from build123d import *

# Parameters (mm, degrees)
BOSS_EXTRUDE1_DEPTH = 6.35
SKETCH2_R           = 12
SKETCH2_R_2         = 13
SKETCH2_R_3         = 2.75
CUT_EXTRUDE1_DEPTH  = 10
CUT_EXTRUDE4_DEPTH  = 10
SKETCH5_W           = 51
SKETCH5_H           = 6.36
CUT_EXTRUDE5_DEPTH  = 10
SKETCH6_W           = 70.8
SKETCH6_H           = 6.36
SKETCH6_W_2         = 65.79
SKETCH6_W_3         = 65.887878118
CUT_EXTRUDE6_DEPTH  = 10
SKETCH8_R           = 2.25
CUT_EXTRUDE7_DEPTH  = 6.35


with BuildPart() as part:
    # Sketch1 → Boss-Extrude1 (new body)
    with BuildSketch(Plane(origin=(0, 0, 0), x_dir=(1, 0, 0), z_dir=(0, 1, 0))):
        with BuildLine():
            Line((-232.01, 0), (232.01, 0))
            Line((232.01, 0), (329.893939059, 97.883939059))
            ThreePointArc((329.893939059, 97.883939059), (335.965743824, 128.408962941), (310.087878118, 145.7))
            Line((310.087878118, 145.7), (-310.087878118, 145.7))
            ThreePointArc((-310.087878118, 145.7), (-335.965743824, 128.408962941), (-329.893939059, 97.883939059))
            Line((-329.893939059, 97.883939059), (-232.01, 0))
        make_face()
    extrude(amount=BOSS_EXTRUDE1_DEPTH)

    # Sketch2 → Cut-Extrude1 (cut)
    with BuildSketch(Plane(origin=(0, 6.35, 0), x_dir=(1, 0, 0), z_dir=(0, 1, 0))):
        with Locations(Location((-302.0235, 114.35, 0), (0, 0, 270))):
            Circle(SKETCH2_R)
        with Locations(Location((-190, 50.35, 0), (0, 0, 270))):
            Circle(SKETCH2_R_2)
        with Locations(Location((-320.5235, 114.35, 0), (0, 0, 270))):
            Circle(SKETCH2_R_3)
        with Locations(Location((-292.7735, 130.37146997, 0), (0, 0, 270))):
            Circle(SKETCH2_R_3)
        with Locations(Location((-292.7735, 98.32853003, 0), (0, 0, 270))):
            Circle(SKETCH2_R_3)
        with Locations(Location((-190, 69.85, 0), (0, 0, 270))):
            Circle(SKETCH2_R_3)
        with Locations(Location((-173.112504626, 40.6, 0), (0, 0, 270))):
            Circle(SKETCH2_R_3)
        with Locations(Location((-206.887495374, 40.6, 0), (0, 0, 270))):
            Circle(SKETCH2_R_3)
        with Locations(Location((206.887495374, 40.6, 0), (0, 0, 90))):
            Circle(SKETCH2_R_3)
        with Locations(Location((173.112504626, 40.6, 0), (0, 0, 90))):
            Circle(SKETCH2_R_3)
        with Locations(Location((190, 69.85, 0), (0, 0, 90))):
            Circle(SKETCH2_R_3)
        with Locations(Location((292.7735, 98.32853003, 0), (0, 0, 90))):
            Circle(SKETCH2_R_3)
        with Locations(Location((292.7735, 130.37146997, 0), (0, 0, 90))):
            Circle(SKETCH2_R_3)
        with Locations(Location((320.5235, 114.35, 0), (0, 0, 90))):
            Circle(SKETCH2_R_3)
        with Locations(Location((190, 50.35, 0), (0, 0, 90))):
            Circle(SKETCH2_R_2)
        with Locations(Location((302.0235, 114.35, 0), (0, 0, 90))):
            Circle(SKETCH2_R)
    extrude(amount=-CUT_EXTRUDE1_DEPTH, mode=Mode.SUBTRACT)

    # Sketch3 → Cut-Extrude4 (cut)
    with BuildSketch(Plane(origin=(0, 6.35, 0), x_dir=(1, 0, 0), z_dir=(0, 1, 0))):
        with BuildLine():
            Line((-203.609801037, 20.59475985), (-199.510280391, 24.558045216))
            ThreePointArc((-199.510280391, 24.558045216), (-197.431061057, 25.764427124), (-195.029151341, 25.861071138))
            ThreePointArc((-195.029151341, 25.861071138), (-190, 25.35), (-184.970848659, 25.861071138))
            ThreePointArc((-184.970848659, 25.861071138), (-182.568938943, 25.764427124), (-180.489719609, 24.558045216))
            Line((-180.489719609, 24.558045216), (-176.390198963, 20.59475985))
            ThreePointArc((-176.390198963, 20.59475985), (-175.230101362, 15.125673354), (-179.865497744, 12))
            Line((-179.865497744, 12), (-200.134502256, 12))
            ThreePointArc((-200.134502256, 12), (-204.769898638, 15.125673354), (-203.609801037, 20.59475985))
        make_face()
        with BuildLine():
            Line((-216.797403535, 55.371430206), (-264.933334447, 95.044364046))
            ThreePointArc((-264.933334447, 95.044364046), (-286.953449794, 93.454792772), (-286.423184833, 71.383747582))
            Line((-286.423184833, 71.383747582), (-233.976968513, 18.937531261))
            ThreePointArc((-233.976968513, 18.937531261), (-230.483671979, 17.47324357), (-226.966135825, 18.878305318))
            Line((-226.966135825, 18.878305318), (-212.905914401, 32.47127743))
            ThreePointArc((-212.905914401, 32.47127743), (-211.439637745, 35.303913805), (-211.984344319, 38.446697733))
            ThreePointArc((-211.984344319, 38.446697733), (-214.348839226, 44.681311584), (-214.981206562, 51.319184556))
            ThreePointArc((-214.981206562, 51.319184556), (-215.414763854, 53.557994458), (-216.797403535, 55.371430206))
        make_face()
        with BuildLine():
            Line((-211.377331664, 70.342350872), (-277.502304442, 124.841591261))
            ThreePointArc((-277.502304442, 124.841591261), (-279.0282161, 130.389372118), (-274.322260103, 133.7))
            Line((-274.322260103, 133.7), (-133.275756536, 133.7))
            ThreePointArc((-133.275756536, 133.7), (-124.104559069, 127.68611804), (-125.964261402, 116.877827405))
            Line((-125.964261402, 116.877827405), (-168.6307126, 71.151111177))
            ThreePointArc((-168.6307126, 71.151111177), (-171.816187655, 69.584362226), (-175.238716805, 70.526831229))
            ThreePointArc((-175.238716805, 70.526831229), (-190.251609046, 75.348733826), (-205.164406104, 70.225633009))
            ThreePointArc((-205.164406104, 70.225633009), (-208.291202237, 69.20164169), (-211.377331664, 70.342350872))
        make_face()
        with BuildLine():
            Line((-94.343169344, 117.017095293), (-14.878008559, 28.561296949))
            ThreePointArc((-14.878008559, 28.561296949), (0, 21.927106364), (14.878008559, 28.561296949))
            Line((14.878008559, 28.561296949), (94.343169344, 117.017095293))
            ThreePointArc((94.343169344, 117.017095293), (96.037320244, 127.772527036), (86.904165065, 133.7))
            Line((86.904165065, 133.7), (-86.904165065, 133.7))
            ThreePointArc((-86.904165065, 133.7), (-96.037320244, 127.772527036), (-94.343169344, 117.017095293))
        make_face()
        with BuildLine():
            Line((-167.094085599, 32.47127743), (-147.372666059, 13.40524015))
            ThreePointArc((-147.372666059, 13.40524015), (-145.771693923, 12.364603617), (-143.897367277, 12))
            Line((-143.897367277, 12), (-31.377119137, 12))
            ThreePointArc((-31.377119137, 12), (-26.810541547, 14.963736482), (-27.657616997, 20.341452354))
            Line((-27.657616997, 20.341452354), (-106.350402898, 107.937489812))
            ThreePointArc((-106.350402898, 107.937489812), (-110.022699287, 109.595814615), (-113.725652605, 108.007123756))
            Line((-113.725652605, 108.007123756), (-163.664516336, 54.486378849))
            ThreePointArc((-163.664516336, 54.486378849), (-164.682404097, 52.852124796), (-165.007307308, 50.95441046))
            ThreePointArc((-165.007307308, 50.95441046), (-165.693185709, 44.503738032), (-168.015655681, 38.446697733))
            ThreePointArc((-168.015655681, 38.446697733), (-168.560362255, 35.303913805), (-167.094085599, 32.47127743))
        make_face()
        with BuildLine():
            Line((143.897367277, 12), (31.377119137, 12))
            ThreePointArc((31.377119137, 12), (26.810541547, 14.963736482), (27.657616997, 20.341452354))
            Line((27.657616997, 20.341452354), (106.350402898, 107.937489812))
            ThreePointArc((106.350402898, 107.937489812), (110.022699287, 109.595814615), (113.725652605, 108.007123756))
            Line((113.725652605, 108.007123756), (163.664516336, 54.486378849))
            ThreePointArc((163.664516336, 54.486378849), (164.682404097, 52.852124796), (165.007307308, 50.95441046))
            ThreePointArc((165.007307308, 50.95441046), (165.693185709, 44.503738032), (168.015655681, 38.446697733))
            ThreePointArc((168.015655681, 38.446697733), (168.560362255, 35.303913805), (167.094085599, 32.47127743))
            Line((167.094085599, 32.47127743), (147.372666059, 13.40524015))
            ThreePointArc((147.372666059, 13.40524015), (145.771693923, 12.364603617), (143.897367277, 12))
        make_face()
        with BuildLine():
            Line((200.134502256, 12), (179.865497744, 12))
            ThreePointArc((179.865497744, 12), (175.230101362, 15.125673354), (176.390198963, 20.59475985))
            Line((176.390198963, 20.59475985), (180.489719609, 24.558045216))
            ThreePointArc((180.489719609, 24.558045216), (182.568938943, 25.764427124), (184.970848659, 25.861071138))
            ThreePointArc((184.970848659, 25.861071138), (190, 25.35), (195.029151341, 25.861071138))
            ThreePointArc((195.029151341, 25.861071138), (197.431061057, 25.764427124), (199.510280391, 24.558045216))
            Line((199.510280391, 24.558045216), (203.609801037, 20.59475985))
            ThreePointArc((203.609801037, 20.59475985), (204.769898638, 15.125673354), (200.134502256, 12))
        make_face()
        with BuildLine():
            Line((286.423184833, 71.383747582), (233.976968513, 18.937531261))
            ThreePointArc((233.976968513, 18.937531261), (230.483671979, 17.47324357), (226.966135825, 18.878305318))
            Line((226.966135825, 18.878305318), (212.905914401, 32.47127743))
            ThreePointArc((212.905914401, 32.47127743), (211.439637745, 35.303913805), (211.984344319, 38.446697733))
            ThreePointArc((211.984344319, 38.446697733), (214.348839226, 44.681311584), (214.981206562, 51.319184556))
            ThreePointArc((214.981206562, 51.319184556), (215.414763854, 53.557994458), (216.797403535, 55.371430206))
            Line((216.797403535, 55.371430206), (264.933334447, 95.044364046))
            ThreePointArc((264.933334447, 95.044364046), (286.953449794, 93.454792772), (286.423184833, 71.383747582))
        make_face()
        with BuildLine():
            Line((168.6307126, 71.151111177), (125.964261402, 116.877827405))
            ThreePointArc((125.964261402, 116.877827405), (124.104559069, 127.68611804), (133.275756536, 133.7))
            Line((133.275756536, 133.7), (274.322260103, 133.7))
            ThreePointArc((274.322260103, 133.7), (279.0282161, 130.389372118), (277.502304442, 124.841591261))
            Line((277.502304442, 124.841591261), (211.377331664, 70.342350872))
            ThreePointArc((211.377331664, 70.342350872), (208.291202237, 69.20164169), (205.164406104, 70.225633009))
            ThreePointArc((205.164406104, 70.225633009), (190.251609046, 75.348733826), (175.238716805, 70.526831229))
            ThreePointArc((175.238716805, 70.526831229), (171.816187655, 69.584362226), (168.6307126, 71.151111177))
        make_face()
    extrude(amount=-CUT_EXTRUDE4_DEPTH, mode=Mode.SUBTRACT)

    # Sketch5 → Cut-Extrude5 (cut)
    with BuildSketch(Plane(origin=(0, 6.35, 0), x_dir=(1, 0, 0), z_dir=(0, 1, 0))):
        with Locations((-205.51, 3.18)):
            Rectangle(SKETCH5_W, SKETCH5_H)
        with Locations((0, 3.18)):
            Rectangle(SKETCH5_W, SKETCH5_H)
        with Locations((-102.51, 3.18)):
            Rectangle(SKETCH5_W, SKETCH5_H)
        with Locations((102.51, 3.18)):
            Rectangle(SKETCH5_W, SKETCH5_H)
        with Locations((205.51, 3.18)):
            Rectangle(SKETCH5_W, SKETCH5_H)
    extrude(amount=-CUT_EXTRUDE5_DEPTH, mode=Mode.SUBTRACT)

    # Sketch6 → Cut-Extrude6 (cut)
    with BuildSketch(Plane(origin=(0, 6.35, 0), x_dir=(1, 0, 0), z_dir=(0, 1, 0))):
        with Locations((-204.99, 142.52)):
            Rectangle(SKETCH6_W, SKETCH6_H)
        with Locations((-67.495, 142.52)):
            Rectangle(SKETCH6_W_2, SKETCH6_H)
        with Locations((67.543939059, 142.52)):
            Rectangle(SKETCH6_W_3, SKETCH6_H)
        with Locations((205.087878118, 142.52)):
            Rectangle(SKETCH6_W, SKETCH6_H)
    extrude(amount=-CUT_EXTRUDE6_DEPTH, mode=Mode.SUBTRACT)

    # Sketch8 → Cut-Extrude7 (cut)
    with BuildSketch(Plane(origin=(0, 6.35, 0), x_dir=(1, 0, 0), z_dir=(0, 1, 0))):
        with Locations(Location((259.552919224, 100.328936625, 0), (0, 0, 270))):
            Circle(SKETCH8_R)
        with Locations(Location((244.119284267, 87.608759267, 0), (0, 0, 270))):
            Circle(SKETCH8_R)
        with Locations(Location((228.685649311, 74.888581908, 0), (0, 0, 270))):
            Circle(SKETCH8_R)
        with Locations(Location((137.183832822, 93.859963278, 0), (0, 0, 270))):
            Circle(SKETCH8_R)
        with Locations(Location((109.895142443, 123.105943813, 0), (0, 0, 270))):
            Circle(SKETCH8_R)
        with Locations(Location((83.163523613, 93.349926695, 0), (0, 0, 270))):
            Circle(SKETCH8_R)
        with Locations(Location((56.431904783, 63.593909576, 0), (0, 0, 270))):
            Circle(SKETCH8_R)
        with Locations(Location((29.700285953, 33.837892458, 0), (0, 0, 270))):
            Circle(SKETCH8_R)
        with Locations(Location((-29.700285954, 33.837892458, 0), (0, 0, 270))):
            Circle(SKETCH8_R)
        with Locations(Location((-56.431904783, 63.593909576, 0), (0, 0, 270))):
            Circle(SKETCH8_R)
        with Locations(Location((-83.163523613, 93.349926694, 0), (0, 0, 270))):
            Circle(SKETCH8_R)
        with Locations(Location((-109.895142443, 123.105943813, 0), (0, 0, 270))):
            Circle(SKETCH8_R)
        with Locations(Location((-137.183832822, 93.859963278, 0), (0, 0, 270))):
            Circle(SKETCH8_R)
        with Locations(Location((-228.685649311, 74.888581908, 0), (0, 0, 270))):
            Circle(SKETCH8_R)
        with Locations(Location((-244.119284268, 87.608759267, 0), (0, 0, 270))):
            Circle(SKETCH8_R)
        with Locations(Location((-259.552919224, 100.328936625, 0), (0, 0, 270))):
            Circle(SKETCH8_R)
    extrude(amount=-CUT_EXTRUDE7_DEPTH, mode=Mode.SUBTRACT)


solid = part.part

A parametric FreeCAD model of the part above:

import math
import FreeCAD as App
import Part
import Sketcher
Q = App.Units.Quantity

doc = App.newDocument("Part")
body = doc.addObject("PartDesign::Body", "Body")

sketch1 = body.newObject("Sketcher::SketchObject", "Sketch")
sketch1.AttachmentSupport = (doc.getObject("XZ_Plane"), [""])
sketch1.MapMode = "FlatFace"
sketch1.addGeometry([
    Part.LineSegment(App.Vector(-232, 0, 0), App.Vector(232, 0, 0)),
    Part.LineSegment(App.Vector(232, 0, 0), App.Vector(330, -98, 0)),
    Part.ArcOfCircle(Part.Circle(App.Vector(310, -118, 0), App.Vector(0, 0, 1), 28), math.radians(-90), math.radians(45)),
    Part.LineSegment(App.Vector(310, -146, 0), App.Vector(-310, -146, 0)),
    Part.ArcOfCircle(Part.Circle(App.Vector(-310, -118, 0), App.Vector(0, 0, 1), 28), math.radians(135), math.radians(270)),
    Part.LineSegment(App.Vector(-330, -98, 0), App.Vector(-232, 0, 0)),
], False)
sketch1.addConstraint([
    Sketcher.Constraint("Coincident", 0, 2, 1, 1),
    Sketcher.Constraint("Tangent", 1, 2, 2, 2),
    Sketcher.Constraint("Tangent", 2, 1, 3, 1),
    Sketcher.Constraint("Tangent", 3, 2, 4, 2),
    Sketcher.Constraint("Tangent", 4, 1, 5, 1),
    Sketcher.Constraint("Coincident", 5, 2, 0, 1),
    Sketcher.Constraint("Horizontal", 0),
    Sketcher.Constraint("Horizontal", 3),
    Sketcher.Constraint("Equal", 2, 4),
    Sketcher.Constraint("Symmetric", 0, 2, 5, 2, -1, 1),
    Sketcher.Constraint("Perpendicular", 1, 5),
    Sketcher.Constraint("Horizontal", 1, 2, 4, 1),
    Sketcher.Constraint("Radius", 2, Q("28.01 mm")),
    Sketcher.Constraint("DistanceX", 0, 1, 0, 2, Q("464.02 mm")),
    Sketcher.Constraint("DistanceY", 2, 1, -1, 1, Q("145.7 mm")),
])
pad1 = body.newObject("PartDesign::Pad", "Pad")
pad1.Profile = sketch1
pad1.Length = 6.35
pad1.Reversed = True

sketch2 = body.newObject("Sketcher::SketchObject", "Sketch001")
sketch2.AttachmentSupport = (doc.getObject("XZ_Plane"), [""])
sketch2.MapMode = "FlatFace"
sketch2.AttachmentOffset = App.Placement(App.Vector(0, 0, -6.35), App.Rotation())
sketch2.addGeometry([
    Part.Circle(App.Vector(-302, -114.3, 0), App.Vector(0, 0, 1), 12),
    Part.Circle(App.Vector(-190, -50.4, 0), App.Vector(0, 0, 1), 13),
    Part.Circle(App.Vector(-320.5, -114.3, 0), App.Vector(0, 0, 1), 2.8),
    Part.Circle(App.Vector(-292.8, -130.4, 0), App.Vector(0, 0, 1), 2.8),
    Part.Circle(App.Vector(-292.8, -98.3, 0), App.Vector(0, 0, 1), 2.8),
    Part.Circle(App.Vector(-190, -69.8, 0), App.Vector(0, 0, 1), 2.8),
    Part.Circle(App.Vector(-173.1, -40.6, 0), App.Vector(0, 0, 1), 2.8),
    Part.Circle(App.Vector(-206.9, -40.6, 0), App.Vector(0, 0, 1), 2.8),
    Part.Circle(App.Vector(206.9, -40.6, 0), App.Vector(0, 0, 1), 2.8),
    Part.Circle(App.Vector(173.1, -40.6, 0), App.Vector(0, 0, 1), 2.8),
    Part.Circle(App.Vector(190, -69.8, 0), App.Vector(0, 0, 1), 2.8),
    Part.Circle(App.Vector(292.8, -98.3, 0), App.Vector(0, 0, 1), 2.8),
    Part.Circle(App.Vector(292.8, -130.4, 0), App.Vector(0, 0, 1), 2.8),
    Part.Circle(App.Vector(320.5, -114.3, 0), App.Vector(0, 0, 1), 2.8),
    Part.Circle(App.Vector(190, -50.4, 0), App.Vector(0, 0, 1), 13),
    Part.Circle(App.Vector(302, -114.3, 0), App.Vector(0, 0, 1), 12),
], False)
sketch2.addConstraint([
    Sketcher.Constraint("Equal", 2, 3),
    Sketcher.Constraint("Equal", 3, 4),
    Sketcher.Constraint("Equal", 4, 5),
    Sketcher.Constraint("Equal", 5, 6),
    Sketcher.Constraint("Equal", 6, 7),
    Sketcher.Constraint("Equal", 7, 8),
    Sketcher.Constraint("Equal", 8, 9),
    Sketcher.Constraint("Equal", 9, 10),
    Sketcher.Constraint("Equal", 10, 11),
    Sketcher.Constraint("Equal", 11, 12),
    Sketcher.Constraint("Equal", 12, 13),
    Sketcher.Constraint("Equal", 1, 14),
    Sketcher.Constraint("Equal", 0, 15),
    Sketcher.Constraint("Symmetric", 7, 3, 8, 3, -2),
    Sketcher.Constraint("Symmetric", 6, 3, 9, 3, -2),
    Sketcher.Constraint("Symmetric", 5, 3, 10, 3, -2),
    Sketcher.Constraint("Symmetric", 4, 3, 11, 3, -2),
    Sketcher.Constraint("Symmetric", 3, 3, 12, 3, -2),
    Sketcher.Constraint("Symmetric", 2, 3, 13, 3, -2),
    Sketcher.Constraint("Symmetric", 1, 3, 14, 3, -2),
    Sketcher.Constraint("Symmetric", 0, 3, 15, 3, -2),
    Sketcher.Constraint("Horizontal", 0, 3, 2, 3),
    Sketcher.Constraint("Horizontal", 6, 3, 7, 3),
    Sketcher.Constraint("Vertical", 3, 3, 4, 3),
    Sketcher.Constraint("Vertical", 1, 3, 5, 3),
    Sketcher.Constraint("Diameter", 0, Q("24 mm")),
    Sketcher.Constraint("Diameter", 1, Q("26 mm")),
    Sketcher.Constraint("Diameter", 2, Q("5.5 mm")),
    Sketcher.Constraint("DistanceX", 1, 3, -1, 1, Q("190 mm")),
    Sketcher.Constraint("DistanceY", 0, 3, 1, 3, Q("64 mm")),
    Sketcher.Constraint("DistanceX", 6, 3, 8, 3, Q("380 mm")),
    Sketcher.Constraint("DistanceY", 6, 3, -1, 1, Q("40.6 mm")),
    Sketcher.Constraint("DistanceX", 2, 3, 0, 3, Q("18.5 mm")),
    Sketcher.Constraint("DistanceY", 5, 3, 1, 3, Q("19.5 mm")),
    Sketcher.Constraint("DistanceY", 0, 3, -1, 1, Q("114.35 mm")),
    Sketcher.Constraint("DistanceX", 0, 3, 3, 3, Q("9.25 mm")),
    Sketcher.Constraint("DistanceX", 0, 3, -1, 1, Q("302.0235 mm")),
    Sketcher.Constraint("DistanceY", 3, 3, -1, 1, Q("130.37147 mm")),
    Sketcher.Constraint("DistanceY", 4, 3, -1, 1, Q("98.32853 mm")),
    Sketcher.Constraint("DistanceX", 7, 3, 6, 3, Q("33.774991 mm")),
])
pocket1 = body.newObject("PartDesign::Pocket", "Pocket")
pocket1.Profile = sketch2
pocket1.Length = 10
pocket1.Reversed = True

sketch3 = body.newObject("Sketcher::SketchObject", "Sketch002")
sketch3.AttachmentSupport = (doc.getObject("XZ_Plane"), [""])
sketch3.MapMode = "FlatFace"
sketch3.AttachmentOffset = App.Placement(App.Vector(0, 0, -6.35), App.Rotation())
sketch3.addGeometry([
    Part.LineSegment(App.Vector(-199.5, -24.6, 0), App.Vector(-203.6, -20.6, 0)),
    Part.ArcOfCircle(Part.Circle(App.Vector(-200.1, -17, 0), App.Vector(0, 0, 1), 5), math.radians(90), math.radians(226)),
    Part.LineSegment(App.Vector(-200.1, -12, 0), App.Vector(-179.9, -12, 0)),
    Part.ArcOfCircle(Part.Circle(App.Vector(-179.9, -17, 0), App.Vector(0, 0, 1), 5), math.radians(-46), math.radians(90)),
    Part.LineSegment(App.Vector(-176.4, -20.6, 0), App.Vector(-180.5, -24.6, 0)),
    Part.ArcOfCircle(Part.Circle(App.Vector(-184, -21, 0), App.Vector(0, 0, 1), 5), math.radians(-102), math.radians(-46)),
    Part.ArcOfCircle(Part.Circle(App.Vector(-190, -50.4, 0), App.Vector(0, 0, 1), 25), math.radians(78), math.radians(102)),
    Part.ArcOfCircle(Part.Circle(App.Vector(-196, -21, 0), App.Vector(0, 0, 1), 5), math.radians(-134), math.radians(-78)),
    Part.LineSegment(App.Vector(-216.8, -55.4, 0), App.Vector(-264.9, -95, 0)),
    Part.ArcOfCircle(Part.Circle(App.Vector(-275.1, -82.7, 0), App.Vector(0, 0, 1), 16), math.radians(135), math.radians(309)),
    Part.LineSegment(App.Vector(-286.4, -71.4, 0), App.Vector(-234, -18.9, 0)),
    Part.ArcOfCircle(Part.Circle(App.Vector(-230.4, -22.5, 0), App.Vector(0, 0, 1), 5), math.radians(46), math.radians(135)),
    Part.LineSegment(App.Vector(-227, -18.9, 0), App.Vector(-212.9, -32.5, 0)),
    Part.ArcOfCircle(Part.Circle(App.Vector(-216.4, -36.1, 0), App.Vector(0, 0, 1), 5), math.radians(-28), math.radians(46)),
    Part.ArcOfCircle(Part.Circle(App.Vector(-190, -50.3, 0), App.Vector(0, 0, 1), 25), math.radians(152), math.radians(182)),
    Part.ArcOfCircle(Part.Circle(App.Vector(-220, -51.5, 0), App.Vector(0, 0, 1), 5), math.radians(-51), math.radians(2)),
    Part.LineSegment(App.Vector(-277.5, -124.8, 0), App.Vector(-211.4, -70.3, 0)),
    Part.ArcOfCircle(Part.Circle(App.Vector(-208.2, -74.2, 0), App.Vector(0, 0, 1), 5), math.radians(53), math.radians(129)),
    Part.ArcOfCircle(Part.Circle(App.Vector(-190, -50.4, 0), App.Vector(0, 0, 1), 25), math.radians(-127), math.radians(-54)),
    Part.ArcOfCircle(Part.Circle(App.Vector(-172.3, -74.6, 0), App.Vector(0, 0, 1), 5), math.radians(43), math.radians(126)),
    Part.LineSegment(App.Vector(-168.6, -71.2, 0), App.Vector(-126, -116.9, 0)),
    Part.ArcOfCircle(Part.Circle(App.Vector(-133.3, -123.7, 0), App.Vector(0, 0, 1), 10), math.radians(-90), math.radians(43)),
    Part.LineSegment(App.Vector(-133.3, -133.7, 0), App.Vector(-274.3, -133.7, 0)),
    Part.ArcOfCircle(Part.Circle(App.Vector(-274.3, -128.7, 0), App.Vector(0, 0, 1), 5), math.radians(129), math.radians(270)),
    Part.LineSegment(App.Vector(-94.3, -117, 0), App.Vector(-14.9, -28.6, 0)),
    Part.ArcOfCircle(Part.Circle(App.Vector(0, -41.9, 0), App.Vector(0, 0, 1), 20), math.radians(42), math.radians(138)),
    Part.LineSegment(App.Vector(14.9, -28.6, 0), App.Vector(94.3, -117, 0)),
    Part.ArcOfCircle(Part.Circle(App.Vector(86.9, -123.7, 0), App.Vector(0, 0, 1), 10), math.radians(-90), math.radians(42)),
    Part.LineSegment(App.Vector(86.9, -133.7, 0), App.Vector(-86.9, -133.7, 0)),
    Part.ArcOfCircle(Part.Circle(App.Vector(-86.9, -123.7, 0), App.Vector(0, 0, 1), 10), math.radians(138), math.radians(270)),
    Part.LineSegment(App.Vector(-167.1, -32.5, 0), App.Vector(-147.4, -13.4, 0)),
    Part.ArcOfCircle(Part.Circle(App.Vector(-143.9, -17, 0), App.Vector(0, 0, 1), 5), math.radians(90), math.radians(134)),
    Part.LineSegment(App.Vector(-143.9, -12, 0), App.Vector(-31.4, -12, 0)),
    Part.ArcOfCircle(Part.Circle(App.Vector(-31.4, -17, 0), App.Vector(0, 0, 1), 5), math.radians(-42), math.radians(90)),
    Part.LineSegment(App.Vector(-27.7, -20.3, 0), App.Vector(-106.4, -107.9, 0)),
    Part.ArcOfCircle(Part.Circle(App.Vector(-110.1, -104.6, 0), App.Vector(0, 0, 1), 5), math.radians(-137), math.radians(-42)),
    Part.LineSegment(App.Vector(-113.7, -108, 0), App.Vector(-163.7, -54.5, 0)),
    Part.ArcOfCircle(Part.Circle(App.Vector(-160, -51.1, 0), App.Vector(0, 0, 1), 5), math.radians(179), math.radians(223)),
    Part.ArcOfCircle(Part.Circle(App.Vector(-190, -50.4, 0), App.Vector(0, 0, 1), 25), math.radians(-1), math.radians(28)),
    Part.ArcOfCircle(Part.Circle(App.Vector(-163.6, -36.1, 0), App.Vector(0, 0, 1), 5), math.radians(134), math.radians(208)),
    Part.LineSegment(App.Vector(31.4, -12, 0), App.Vector(143.9, -12, 0)),
    Part.ArcOfCircle(Part.Circle(App.Vector(143.9, -17, 0), App.Vector(0, 0, 1), 5), math.radians(46), math.radians(90)),
    Part.LineSegment(App.Vector(147.4, -13.4, 0), App.Vector(167.1, -32.5, 0)),
    Part.ArcOfCircle(Part.Circle(App.Vector(163.6, -36.1, 0), App.Vector(0, 0, 1), 5), math.radians(-28), math.radians(46)),
    Part.ArcOfCircle(Part.Circle(App.Vector(190, -50.4, 0), App.Vector(0, 0, 1), 25), math.radians(152), math.radians(181)),
    Part.ArcOfCircle(Part.Circle(App.Vector(160, -51.1, 0), App.Vector(0, 0, 1), 5), math.radians(-43), math.radians(1)),
    Part.LineSegment(App.Vector(163.7, -54.5, 0), App.Vector(113.7, -108, 0)),
    Part.ArcOfCircle(Part.Circle(App.Vector(110.1, -104.6, 0), App.Vector(0, 0, 1), 5), math.radians(-138), math.radians(-43)),
    Part.LineSegment(App.Vector(106.4, -107.9, 0), App.Vector(27.7, -20.3, 0)),
    Part.ArcOfCircle(Part.Circle(App.Vector(31.4, -17, 0), App.Vector(0, 0, 1), 5), math.radians(90), math.radians(222)),
    Part.LineSegment(App.Vector(179.9, -12, 0), App.Vector(200.1, -12, 0)),
    Part.ArcOfCircle(Part.Circle(App.Vector(200.1, -17, 0), App.Vector(0, 0, 1), 5), math.radians(-46), math.radians(90)),
    Part.LineSegment(App.Vector(203.6, -20.6, 0), App.Vector(199.5, -24.6, 0)),
    Part.ArcOfCircle(Part.Circle(App.Vector(196, -21, 0), App.Vector(0, 0, 1), 5), math.radians(-102), math.radians(-46)),
    Part.ArcOfCircle(Part.Circle(App.Vector(190, -50.4, 0), App.Vector(0, 0, 1), 25), math.radians(78), math.radians(102)),
    Part.ArcOfCircle(Part.Circle(App.Vector(184, -21, 0), App.Vector(0, 0, 1), 5), math.radians(-134), math.radians(-78)),
    Part.LineSegment(App.Vector(180.5, -24.6, 0), App.Vector(176.4, -20.6, 0)),
    Part.ArcOfCircle(Part.Circle(App.Vector(179.9, -17, 0), App.Vector(0, 0, 1), 5), math.radians(90), math.radians(226)),
    Part.LineSegment(App.Vector(234, -18.9, 0), App.Vector(286.4, -71.4, 0)),
    Part.ArcOfCircle(Part.Circle(App.Vector(275.1, -82.7, 0), App.Vector(0, 0, 1), 16), math.radians(-129), math.radians(45)),
    Part.LineSegment(App.Vector(264.9, -95, 0), App.Vector(216.8, -55.4, 0)),
    Part.ArcOfCircle(Part.Circle(App.Vector(220, -51.5, 0), App.Vector(0, 0, 1), 5), math.radians(178), math.radians(231)),
    Part.ArcOfCircle(Part.Circle(App.Vector(190, -50.3, 0), App.Vector(0, 0, 1), 25), math.radians(-2), math.radians(28)),
    Part.ArcOfCircle(Part.Circle(App.Vector(216.4, -36.1, 0), App.Vector(0, 0, 1), 5), math.radians(134), math.radians(208)),
    Part.LineSegment(App.Vector(212.9, -32.5, 0), App.Vector(227, -18.9, 0)),
    Part.ArcOfCircle(Part.Circle(App.Vector(230.4, -22.5, 0), App.Vector(0, 0, 1), 5), math.radians(45), math.radians(134)),
    Part.LineSegment(App.Vector(126, -116.9, 0), App.Vector(168.6, -71.2, 0)),
    Part.ArcOfCircle(Part.Circle(App.Vector(172.3, -74.6, 0), App.Vector(0, 0, 1), 5), math.radians(54), math.radians(137)),
    Part.ArcOfCircle(Part.Circle(App.Vector(190, -50.4, 0), App.Vector(0, 0, 1), 25), math.radians(-126), math.radians(-53)),
    Part.ArcOfCircle(Part.Circle(App.Vector(208.2, -74.2, 0), App.Vector(0, 0, 1), 5), math.radians(51), math.radians(127)),
    Part.LineSegment(App.Vector(211.4, -70.3, 0), App.Vector(277.5, -124.8, 0)),
    Part.ArcOfCircle(Part.Circle(App.Vector(274.3, -128.7, 0), App.Vector(0, 0, 1), 5), math.radians(-90), math.radians(51)),
    Part.LineSegment(App.Vector(274.3, -133.7, 0), App.Vector(133.3, -133.7, 0)),
    Part.ArcOfCircle(Part.Circle(App.Vector(133.3, -123.7, 0), App.Vector(0, 0, 1), 10), math.radians(137), math.radians(270)),
], False)
sketch3.addConstraint([
    Sketcher.Constraint("Tangent", 0, 2, 1, 2),
    Sketcher.Constraint("Tangent", 1, 1, 2, 1),
    Sketcher.Constraint("Tangent", 2, 2, 3, 2),
    Sketcher.Constraint("Tangent", 3, 1, 4, 1),
    Sketcher.Constraint("Tangent", 4, 2, 5, 2),
    Sketcher.Constraint("Tangent", 5, 1, 6, 1),
    Sketcher.Constraint("Tangent", 6, 2, 7, 2),
    Sketcher.Constraint("Tangent", 7, 1, 0, 1),
    Sketcher.Constraint("Tangent", 8, 2, 9, 2),
    Sketcher.Constraint("Tangent", 9, 1, 10, 1),
    Sketcher.Constraint("Tangent", 10, 2, 11, 2),
    Sketcher.Constraint("Tangent", 11, 1, 12, 1),
    Sketcher.Constraint("Tangent", 12, 2, 13, 2),
    Sketcher.Constraint("Tangent", 13, 1, 14, 1),
    Sketcher.Constraint("Tangent", 14, 2, 15, 2),
    Sketcher.Constraint("Tangent", 15, 1, 8, 1),
    Sketcher.Constraint("Tangent", 16, 2, 17, 2),
    Sketcher.Constraint("Tangent", 17, 1, 18, 1),
    Sketcher.Constraint("Tangent", 18, 2, 19, 2),
    Sketcher.Constraint("Tangent", 19, 1, 20, 1),
    Sketcher.Constraint("Tangent", 20, 2, 21, 2),
    Sketcher.Constraint("Tangent", 21, 1, 22, 1),
    Sketcher.Constraint("Tangent", 22, 2, 23, 2),
    Sketcher.Constraint("Tangent", 23, 1, 16, 1),
    Sketcher.Constraint("Tangent", 24, 2, 25, 2),
    Sketcher.Constraint("Tangent", 25, 1, 26, 1),
    Sketcher.Constraint("Tangent", 26, 2, 27, 2),
    Sketcher.Constraint("Tangent", 27, 1, 28, 1),
    Sketcher.Constraint("Tangent", 28, 2, 29, 2),
    Sketcher.Constraint("Tangent", 29, 1, 24, 1),
    Sketcher.Constraint("Tangent", 30, 2, 31, 2),
    Sketcher.Constraint("Tangent", 31, 1, 32, 1),
    Sketcher.Constraint("Tangent", 32, 2, 33, 2),
    Sketcher.Constraint("Tangent", 33, 1, 34, 1),
    Sketcher.Constraint("Tangent", 34, 2, 35, 2),
    Sketcher.Constraint("Tangent", 35, 1, 36, 1),
    Sketcher.Constraint("Tangent", 36, 2, 37, 2),
    Sketcher.Constraint("Tangent", 37, 1, 38, 1),
    Sketcher.Constraint("Tangent", 38, 2, 39, 2),
    Sketcher.Constraint("Tangent", 39, 1, 30, 1),
    Sketcher.Constraint("Tangent", 40, 2, 41, 2),
    Sketcher.Constraint("Tangent", 41, 1, 42, 1),
    Sketcher.Constraint("Tangent", 42, 2, 43, 2),
    Sketcher.Constraint("Tangent", 43, 1, 44, 1),
    Sketcher.Constraint("Tangent", 44, 2, 45, 2),
    Sketcher.Constraint("Tangent", 45, 1, 46, 1),
    Sketcher.Constraint("Tangent", 46, 2, 47, 2),
    Sketcher.Constraint("Tangent", 47, 1, 48, 1),
    Sketcher.Constraint("Tangent", 48, 2, 49, 2),
    Sketcher.Constraint("Tangent", 49, 1, 40, 1),
    Sketcher.Constraint("Tangent", 50, 2, 51, 2),
    Sketcher.Constraint("Tangent", 51, 1, 52, 1),
    Sketcher.Constraint("Tangent", 52, 2, 53, 2),
    Sketcher.Constraint("Tangent", 53, 1, 54, 1),
    Sketcher.Constraint("Tangent", 54, 2, 55, 2),
    Sketcher.Constraint("Tangent", 55, 1, 56, 1),
    Sketcher.Constraint("Tangent", 56, 2, 57, 2),
    Sketcher.Constraint("Tangent", 57, 1, 50, 1),
    Sketcher.Constraint("Tangent", 58, 2, 59, 2),
    Sketcher.Constraint("Tangent", 59, 1, 60, 1),
    Sketcher.Constraint("Tangent", 60, 2, 61, 2),
    Sketcher.Constraint("Tangent", 61, 1, 62, 1),
    Sketcher.Constraint("Tangent", 62, 2, 63, 2),
    Sketcher.Constraint("Tangent", 63, 1, 64, 1),
    Sketcher.Constraint("Tangent", 64, 2, 65, 2),
    Sketcher.Constraint("Tangent", 65, 1, 58, 1),
    Sketcher.Constraint("Tangent", 66, 2, 67, 2),
    Sketcher.Constraint("Tangent", 67, 1, 68, 1),
    Sketcher.Constraint("Tangent", 68, 2, 69, 2),
    Sketcher.Constraint("Tangent", 69, 1, 70, 1),
    Sketcher.Constraint("Tangent", 70, 2, 71, 2),
    Sketcher.Constraint("Tangent", 71, 1, 72, 1),
    Sketcher.Constraint("Tangent", 72, 2, 73, 2),
    Sketcher.Constraint("Tangent", 73, 1, 66, 1),
    Sketcher.Constraint("Horizontal", 2),
    Sketcher.Constraint("Horizontal", 22),
    Sketcher.Constraint("Horizontal", 28),
    Sketcher.Constraint("Horizontal", 32),
    Sketcher.Constraint("Horizontal", 40),
    Sketcher.Constraint("Horizontal", 50),
    Sketcher.Constraint("Horizontal", 72),
    Sketcher.Constraint("Coincident", 14, 3, 6, 3),
    Sketcher.Constraint("Coincident", 18, 3, 6, 3),
    Sketcher.Constraint("Coincident", 38, 3, 6, 3),
    Sketcher.Constraint("Coincident", 54, 3, 44, 3),
    Sketcher.Constraint("Coincident", 62, 3, 44, 3),
    Sketcher.Constraint("Coincident", 68, 3, 44, 3),
    Sketcher.Constraint("Equal", 1, 3),
    Sketcher.Constraint("Equal", 3, 5),
    Sketcher.Constraint("Equal", 5, 7),
    Sketcher.Constraint("Equal", 7, 11),
    Sketcher.Constraint("Equal", 11, 13),
    Sketcher.Constraint("Equal", 6, 14),
    Sketcher.Constraint("Equal", 13, 15),
    Sketcher.Constraint("Equal", 15, 17),
    Sketcher.Constraint("Equal", 14, 18),
    Sketcher.Constraint("Equal", 17, 19),
    Sketcher.Constraint("Equal", 19, 23),
    Sketcher.Constraint("Equal", 21, 27),
    Sketcher.Constraint("Equal", 27, 29),
    Sketcher.Constraint("Equal", 23, 31),
    Sketcher.Constraint("Equal", 31, 33),
    Sketcher.Constraint("Equal", 33, 35),
    Sketcher.Constraint("Equal", 35, 37),
    Sketcher.Constraint("Equal", 18, 38),
    Sketcher.Constraint("Equal", 37, 39),
    Sketcher.Constraint("Equal", 39, 41),
    Sketcher.Constraint("Equal", 41, 43),
    Sketcher.Constraint("Equal", 38, 44),
    Sketcher.Constraint("Equal", 43, 45),
    Sketcher.Constraint("Equal", 45, 47),
    Sketcher.Constraint("Equal", 47, 49),
    Sketcher.Constraint("Equal", 49, 51),
    Sketcher.Constraint("Equal", 51, 53),
    Sketcher.Constraint("Equal", 44, 54),
    Sketcher.Constraint("Equal", 53, 55),
    Sketcher.Constraint("Equal", 55, 57),
    Sketcher.Constraint("Equal", 9, 59),
    Sketcher.Constraint("Equal", 57, 61),
    Sketcher.Constraint("Equal", 54, 62),
    Sketcher.Constraint("Equal", 61, 63),
    Sketcher.Constraint("Equal", 63, 65),
    Sketcher.Constraint("Equal", 65, 67),
    Sketcher.Constraint("Equal", 62, 68),
    Sketcher.Constraint("Equal", 67, 69),
    Sketcher.Constraint("Equal", 69, 71),
    Sketcher.Constraint("Equal", 29, 73),
    Sketcher.Constraint("Symmetric", 31, 3, 41, 3, -2),
    Sketcher.Constraint("Symmetric", 39, 3, 43, 3, -2),
    Sketcher.Constraint("Symmetric", 37, 3, 45, 3, -2),
    Sketcher.Constraint("Symmetric", 35, 3, 47, 3, -2),
    Sketcher.Constraint("Symmetric", 1, 3, 51, 3, -2),
    Sketcher.Constraint("Symmetric", 9, 3, 59, 3, -2),
    Sketcher.Constraint("Symmetric", 11, 3, 65, 3, -2),
    Sketcher.Constraint("Symmetric", 23, 3, 71, 3, -2),
    Sketcher.Constraint("Symmetric", 24, 2, 25, 1, -2),
    Sketcher.Constraint("Symmetric", 4, 2, 55, 1, -2),
    Sketcher.Constraint("Symmetric", 19, 1, 66, 2, -2),
    Sketcher.Constraint("Parallel", 0, 12),
    Sketcher.Constraint("Parallel", 8, 16),
    Sketcher.Constraint("Parallel", 4, 30),
    Sketcher.Constraint("Parallel", 24, 34),
    Sketcher.Constraint("Parallel", 20, 36),
    Sketcher.Constraint("Parallel", 12, 42),
    Sketcher.Constraint("Parallel", 26, 48),
    Sketcher.Constraint("Parallel", 30, 52),
    Sketcher.Constraint("Perpendicular", 10, 58),
    Sketcher.Constraint("Parallel", 52, 64),
    Sketcher.Constraint("Parallel", 60, 70),
    Sketcher.Constraint("Horizontal", 5, 3, 7, 3),
    Sketcher.Constraint("Horizontal", 21, 3, 27, 3),
    Sketcher.Constraint("Horizontal", 3, 3, 31, 3),
    Sketcher.Constraint("Horizontal", 13, 3, 39, 3),
    Sketcher.Constraint("Horizontal", 15, 3, 61, 3),
    Sketcher.Constraint("Radius", 1, Q("5 mm")),
    Sketcher.Constraint("Radius", 6, Q("25 mm")),
    Sketcher.Constraint("Radius", 9, Q("16 mm")),
    Sketcher.Constraint("Radius", 21, Q("10 mm")),
    Sketcher.Constraint("Radius", 25, Q("20 mm")),
    Sketcher.Constraint("DistanceY", 1, 3, -1, 1, Q("17 mm")),
    Sketcher.Constraint("DistanceX", 6, 3, -1, 1, Q("190 mm")),
    Sketcher.Constraint("DistanceY", 21, 3, -1, 1, Q("123.7 mm")),
    Sketcher.Constraint("DistanceY", 6, 3, -1, 1, Q("50.35 mm")),
    Sketcher.Constraint("DistanceX", 28, 2, 28, 1, Q("173.80833 mm")),
    Sketcher.Constraint("DistanceX", 32, 1, 32, 2, Q("112.520248 mm")),
    Sketcher.Constraint("DistanceX", 0, 2, -1, 1, Q("203.609801 mm")),
    Sketcher.Constraint("Distance", 0, Q("5.702079 mm")),
    Sketcher.Constraint("Distance", 10, Q("74.17015 mm")),
    Sketcher.Constraint("Distance", 12, Q("19.556552 mm")),
    Sketcher.Constraint("Distance", 30, Q("27.430789 mm")),
    Sketcher.Constraint("Distance", 34, Q("117.752369 mm")),
    Sketcher.Constraint("Distance", 36, Q("73.200821 mm")),
    Sketcher.Constraint("DistanceX", 22, 2, 22, 1, Q("141.046504 mm")),
    Sketcher.Constraint("DistanceY", 15, 3, -1, 1, Q("51.513021 mm")),
    Sketcher.Constraint("DistanceY", 17, 3, -1, 1, Q("74.20076 mm")),
    Sketcher.Constraint("DistanceX", 19, 3, -1, 1, Q("172.28646 mm")),
])
pocket2 = body.newObject("PartDesign::Pocket", "Pocket001")
pocket2.Profile = sketch3
pocket2.Length = 10
pocket2.Reversed = True

sketch4 = body.newObject("Sketcher::SketchObject", "Sketch003")
sketch4.AttachmentSupport = (doc.getObject("XZ_Plane"), [""])
sketch4.MapMode = "FlatFace"
sketch4.AttachmentOffset = App.Placement(App.Vector(0, 0, -6.35), App.Rotation())
sketch4.addGeometry([
    Part.LineSegment(App.Vector(-231, -6, 0), App.Vector(-231, 0, 0)),
    Part.LineSegment(App.Vector(-231, 0, 0), App.Vector(-180, 0, 0)),
    Part.LineSegment(App.Vector(-180, 0, 0), App.Vector(-180, -6, 0)),
    Part.LineSegment(App.Vector(-180, -6, 0), App.Vector(-231, -6, 0)),
    Part.LineSegment(App.Vector(-26, -6, 0), App.Vector(-26, 0, 0)),
    Part.LineSegment(App.Vector(-26, 0, 0), App.Vector(26, 0, 0)),
    Part.LineSegment(App.Vector(26, 0, 0), App.Vector(26, -6, 0)),
    Part.LineSegment(App.Vector(26, -6, 0), App.Vector(-26, -6, 0)),
    Part.LineSegment(App.Vector(-128, -6, 0), App.Vector(-128, 0, 0)),
    Part.LineSegment(App.Vector(-128, 0, 0), App.Vector(-77, 0, 0)),
    Part.LineSegment(App.Vector(-77, 0, 0), App.Vector(-77, -6, 0)),
    Part.LineSegment(App.Vector(-77, -6, 0), App.Vector(-128, -6, 0)),
    Part.LineSegment(App.Vector(77, -6, 0), App.Vector(77, 0, 0)),
    Part.LineSegment(App.Vector(77, 0, 0), App.Vector(128, 0, 0)),
    Part.LineSegment(App.Vector(128, 0, 0), App.Vector(128, -6, 0)),
    Part.LineSegment(App.Vector(128, -6, 0), App.Vector(77, -6, 0)),
    Part.LineSegment(App.Vector(180, -6, 0), App.Vector(180, 0, 0)),
    Part.LineSegment(App.Vector(180, 0, 0), App.Vector(231, 0, 0)),
    Part.LineSegment(App.Vector(231, 0, 0), App.Vector(231, -6, 0)),
    Part.LineSegment(App.Vector(231, -6, 0), App.Vector(180, -6, 0)),
], False)
sketch4.addConstraint([
    Sketcher.Constraint("Coincident", 0, 2, 1, 1),
    Sketcher.Constraint("Coincident", 1, 2, 2, 1),
    Sketcher.Constraint("Coincident", 2, 2, 3, 1),
    Sketcher.Constraint("Coincident", 3, 2, 0, 1),
    Sketcher.Constraint("Coincident", 4, 2, 5, 1),
    Sketcher.Constraint("Coincident", 5, 2, 6, 1),
    Sketcher.Constraint("Coincident", 6, 2, 7, 1),
    Sketcher.Constraint("Coincident", 7, 2, 4, 1),
    Sketcher.Constraint("Coincident", 8, 2, 9, 1),
    Sketcher.Constraint("Coincident", 9, 2, 10, 1),
    Sketcher.Constraint("Coincident", 10, 2, 11, 1),
    Sketcher.Constraint("Coincident", 11, 2, 8, 1),
    Sketcher.Constraint("Coincident", 12, 2, 13, 1),
    Sketcher.Constraint("Coincident", 13, 2, 14, 1),
    Sketcher.Constraint("Coincident", 14, 2, 15, 1),
    Sketcher.Constraint("Coincident", 15, 2, 12, 1),
    Sketcher.Constraint("Coincident", 16, 2, 17, 1),
    Sketcher.Constraint("Coincident", 17, 2, 18, 1),
    Sketcher.Constraint("Coincident", 18, 2, 19, 1),
    Sketcher.Constraint("Coincident", 19, 2, 16, 1),
    Sketcher.Constraint("Vertical", 0),
    Sketcher.Constraint("Horizontal", 1),
    Sketcher.Constraint("Vertical", 2),
    Sketcher.Constraint("Horizontal", 3),
    Sketcher.Constraint("Vertical", 4),
    Sketcher.Constraint("Horizontal", 5),
    Sketcher.Constraint("Vertical", 6),
    Sketcher.Constraint("Horizontal", 7),
    Sketcher.Constraint("Vertical", 8),
    Sketcher.Constraint("Horizontal", 9),
    Sketcher.Constraint("Vertical", 10),
    Sketcher.Constraint("Horizontal", 11),
    Sketcher.Constraint("Vertical", 12),
    Sketcher.Constraint("Horizontal", 13),
    Sketcher.Constraint("Vertical", 14),
    Sketcher.Constraint("Horizontal", 15),
    Sketcher.Constraint("Vertical", 16),
    Sketcher.Constraint("Horizontal", 17),
    Sketcher.Constraint("Vertical", 18),
    Sketcher.Constraint("Horizontal", 19),
    Sketcher.Constraint("Symmetric", 4, 2, 5, 2, -1, 1),
    Sketcher.Constraint("Symmetric", 9, 2, 12, 2, -1, 1),
    Sketcher.Constraint("Symmetric", 1, 2, 16, 2, -1, 1),
    Sketcher.Constraint("Symmetric", 8, 2, 13, 2, -2),
    Sketcher.Constraint("Symmetric", 0, 2, 17, 2, -2),
    Sketcher.Constraint("Horizontal", 3, 2, 6, 2),
    Sketcher.Constraint("Horizontal", 7, 2, 10, 2),
    Sketcher.Constraint("Horizontal", 11, 2, 14, 2),
    Sketcher.Constraint("Horizontal", 15, 2, 18, 2),
    Sketcher.Constraint("Equal", 3, 5),
    Sketcher.Constraint("Equal", 7, 9),
    Sketcher.Constraint("DistanceX", 1, 1, 1, 2, Q("51 mm")),
    Sketcher.Constraint("DistanceX", 1, 2, 8, 2, Q("52 mm")),
    Sketcher.Constraint("DistanceY", 0, 1, 0, 2, Q("6.36 mm")),
    Sketcher.Constraint("DistanceX", 0, 2, -1, 1, Q("231.01 mm")),
])
pocket3 = body.newObject("PartDesign::Pocket", "Pocket002")
pocket3.Profile = sketch4
pocket3.Length = 10
pocket3.Reversed = True

sketch5 = body.newObject("Sketcher::SketchObject", "Sketch004")
sketch5.AttachmentSupport = (doc.getObject("XZ_Plane"), [""])
sketch5.MapMode = "FlatFace"
sketch5.AttachmentOffset = App.Placement(App.Vector(0, 0, -6.35), App.Rotation())
sketch5.addGeometry([
    Part.LineSegment(App.Vector(-240, -146, 0), App.Vector(-240, -139, 0)),
    Part.LineSegment(App.Vector(-240, -139, 0), App.Vector(-170, -139, 0)),
    Part.LineSegment(App.Vector(-170, -139, 0), App.Vector(-170, -146, 0)),
    Part.LineSegment(App.Vector(-170, -146, 0), App.Vector(-240, -146, 0)),
    Part.LineSegment(App.Vector(-100, -146, 0), App.Vector(-100, -139, 0)),
    Part.LineSegment(App.Vector(-100, -139, 0), App.Vector(-35, -139, 0)),
    Part.LineSegment(App.Vector(-35, -139, 0), App.Vector(-35, -146, 0)),
    Part.LineSegment(App.Vector(-35, -146, 0), App.Vector(-100, -146, 0)),
    Part.LineSegment(App.Vector(35, -146, 0), App.Vector(35, -139, 0)),
    Part.LineSegment(App.Vector(35, -139, 0), App.Vector(100, -139, 0)),
    Part.LineSegment(App.Vector(100, -139, 0), App.Vector(100, -146, 0)),
    Part.LineSegment(App.Vector(100, -146, 0), App.Vector(35, -146, 0)),
    Part.LineSegment(App.Vector(170, -146, 0), App.Vector(170, -139, 0)),
    Part.LineSegment(App.Vector(170, -139, 0), App.Vector(240, -139, 0)),
    Part.LineSegment(App.Vector(240, -139, 0), App.Vector(240, -146, 0)),
    Part.LineSegment(App.Vector(240, -146, 0), App.Vector(170, -146, 0)),
], False)
sketch5.addConstraint([
    Sketcher.Constraint("Coincident", 0, 2, 1, 1),
    Sketcher.Constraint("Coincident", 1, 2, 2, 1),
    Sketcher.Constraint("Coincident", 2, 2, 3, 1),
    Sketcher.Constraint("Coincident", 3, 2, 0, 1),
    Sketcher.Constraint("Coincident", 4, 2, 5, 1),
    Sketcher.Constraint("Coincident", 5, 2, 6, 1),
    Sketcher.Constraint("Coincident", 6, 2, 7, 1),
    Sketcher.Constraint("Coincident", 7, 2, 4, 1),
    Sketcher.Constraint("Coincident", 8, 2, 9, 1),
    Sketcher.Constraint("Coincident", 9, 2, 10, 1),
    Sketcher.Constraint("Coincident", 10, 2, 11, 1),
    Sketcher.Constraint("Coincident", 11, 2, 8, 1),
    Sketcher.Constraint("Coincident", 12, 2, 13, 1),
    Sketcher.Constraint("Coincident", 13, 2, 14, 1),
    Sketcher.Constraint("Coincident", 14, 2, 15, 1),
    Sketcher.Constraint("Coincident", 15, 2, 12, 1),
    Sketcher.Constraint("Vertical", 0),
    Sketcher.Constraint("Horizontal", 1),
    Sketcher.Constraint("Vertical", 2),
    Sketcher.Constraint("Horizontal", 3),
    Sketcher.Constraint("Vertical", 4),
    Sketcher.Constraint("Horizontal", 5),
    Sketcher.Constraint("Vertical", 6),
    Sketcher.Constraint("Horizontal", 7),
    Sketcher.Constraint("Vertical", 8),
    Sketcher.Constraint("Horizontal", 9),
    Sketcher.Constraint("Vertical", 10),
    Sketcher.Constraint("Horizontal", 11),
    Sketcher.Constraint("Vertical", 12),
    Sketcher.Constraint("Horizontal", 13),
    Sketcher.Constraint("Vertical", 14),
    Sketcher.Constraint("Horizontal", 15),
    Sketcher.Constraint("Symmetric", 5, 2, 8, 2, -2),
    Sketcher.Constraint("Horizontal", 1, 2, 4, 2),
    Sketcher.Constraint("Horizontal", 3, 2, 6, 2),
    Sketcher.Constraint("Horizontal", 7, 2, 10, 2),
    Sketcher.Constraint("Horizontal", 9, 2, 12, 2),
    Sketcher.Constraint("Horizontal", 11, 2, 14, 2),
    Sketcher.Constraint("Equal", 3, 13),
    Sketcher.Constraint("DistanceX", 1, 1, 1, 2, Q("70.8 mm")),
    Sketcher.Constraint("DistanceX", 0, 2, 4, 2, Q("140 mm")),
    Sketcher.Constraint("DistanceX", 9, 2, 13, 2, Q("140 mm")),
    Sketcher.Constraint("DistanceX", 5, 1, 5, 2, Q("65.79 mm")),
    Sketcher.Constraint("DistanceY", 0, 1, 0, 2, Q("6.36 mm")),
    Sketcher.Constraint("DistanceY", 2, 2, -1, 1, Q("145.7 mm")),
    Sketcher.Constraint("DistanceX", 5, 2, -1, 1, Q("34.6 mm")),
    Sketcher.Constraint("DistanceX", 9, 1, 9, 2, Q("65.887878 mm")),
])
pocket4 = body.newObject("PartDesign::Pocket", "Pocket003")
pocket4.Profile = sketch5
pocket4.Length = 10
pocket4.Reversed = True

sketch6 = body.newObject("Sketcher::SketchObject", "Sketch005")
sketch6.AttachmentSupport = (doc.getObject("XZ_Plane"), [""])
sketch6.MapMode = "FlatFace"
sketch6.AttachmentOffset = App.Placement(App.Vector(0, 0, -6.35), App.Rotation())
sketch6.addGeometry([
    Part.Circle(App.Vector(259.6, -100.3, 0), App.Vector(0, 0, 1), 2.2),
    Part.Circle(App.Vector(244.1, -87.6, 0), App.Vector(0, 0, 1), 2.2),
    Part.Circle(App.Vector(228.7, -74.9, 0), App.Vector(0, 0, 1), 2.2),
    Part.Circle(App.Vector(137.2, -93.9, 0), App.Vector(0, 0, 1), 2.2),
    Part.Circle(App.Vector(109.9, -123.1, 0), App.Vector(0, 0, 1), 2.2),
    Part.Circle(App.Vector(83.2, -93.3, 0), App.Vector(0, 0, 1), 2.2),
    Part.Circle(App.Vector(56.4, -63.6, 0), App.Vector(0, 0, 1), 2.2),
    Part.Circle(App.Vector(29.7, -33.8, 0), App.Vector(0, 0, 1), 2.2),
    Part.Circle(App.Vector(-29.7, -33.8, 0), App.Vector(0, 0, 1), 2.2),
    Part.Circle(App.Vector(-56.4, -63.6, 0), App.Vector(0, 0, 1), 2.2),
    Part.Circle(App.Vector(-83.2, -93.3, 0), App.Vector(0, 0, 1), 2.2),
    Part.Circle(App.Vector(-109.9, -123.1, 0), App.Vector(0, 0, 1), 2.2),
    Part.Circle(App.Vector(-137.2, -93.9, 0), App.Vector(0, 0, 1), 2.2),
    Part.Circle(App.Vector(-228.7, -74.9, 0), App.Vector(0, 0, 1), 2.2),
    Part.Circle(App.Vector(-244.1, -87.6, 0), App.Vector(0, 0, 1), 2.2),
    Part.Circle(App.Vector(-259.6, -100.3, 0), App.Vector(0, 0, 1), 2.2),
], False)
sketch6.addConstraint([
    Sketcher.Constraint("Equal", 0, 1),
    Sketcher.Constraint("Equal", 1, 2),
    Sketcher.Constraint("Equal", 2, 3),
    Sketcher.Constraint("Equal", 3, 4),
    Sketcher.Constraint("Equal", 4, 5),
    Sketcher.Constraint("Equal", 5, 6),
    Sketcher.Constraint("Equal", 6, 7),
    Sketcher.Constraint("Equal", 7, 8),
    Sketcher.Constraint("Equal", 8, 9),
    Sketcher.Constraint("Equal", 9, 10),
    Sketcher.Constraint("Equal", 10, 11),
    Sketcher.Constraint("Equal", 11, 12),
    Sketcher.Constraint("Equal", 12, 13),
    Sketcher.Constraint("Equal", 13, 14),
    Sketcher.Constraint("Equal", 14, 15),
    Sketcher.Constraint("Symmetric", 7, 3, 8, 3, -2),
    Sketcher.Constraint("Symmetric", 6, 3, 9, 3, -2),
    Sketcher.Constraint("Symmetric", 5, 3, 10, 3, -2),
    Sketcher.Constraint("Symmetric", 4, 3, 11, 3, -2),
    Sketcher.Constraint("Symmetric", 3, 3, 12, 3, -2),
    Sketcher.Constraint("Symmetric", 2, 3, 13, 3, -2),
    Sketcher.Constraint("Symmetric", 1, 3, 14, 3, -2),
    Sketcher.Constraint("Symmetric", 0, 3, 15, 3, -2),
    Sketcher.Constraint("Diameter", 0, Q("4.5 mm")),
    Sketcher.Constraint("DistanceX", -1, 1, 0, 3, Q("259.552919 mm")),
    Sketcher.Constraint("DistanceY", 1, 3, -1, 1, Q("87.608759 mm")),
    Sketcher.Constraint("DistanceX", -1, 1, 2, 3, Q("228.685649 mm")),
    Sketcher.Constraint("DistanceY", 2, 3, -1, 1, Q("74.888582 mm")),
    Sketcher.Constraint("DistanceY", 6, 3, -1, 1, Q("63.59391 mm")),
    Sketcher.Constraint("DistanceY", 3, 3, 2, 3, Q("18.971381 mm")),
    Sketcher.Constraint("DistanceX", 3, 3, 1, 3, Q("106.935451 mm")),
    Sketcher.Constraint("DistanceX", 4, 3, 3, 3, Q("27.28869 mm")),
    Sketcher.Constraint("DistanceY", 4, 3, 3, 3, Q("29.245981 mm")),
    Sketcher.Constraint("DistanceX", 5, 3, 4, 3, Q("26.731619 mm")),
    Sketcher.Constraint("DistanceY", 0, 3, 5, 3, Q("6.97901 mm")),
    Sketcher.Constraint("DistanceX", 6, 3, 5, 3, Q("26.731619 mm")),
    Sketcher.Constraint("DistanceX", 7, 3, 6, 3, Q("26.731619 mm")),
    Sketcher.Constraint("DistanceY", 4, 3, 7, 3, Q("89.268051 mm")),
    Sketcher.Constraint("DistanceX", 8, 3, 7, 3, Q("59.400572 mm")),
    Sketcher.Constraint("DistanceY", 0, 3, -1, 1, Q("100.328937 mm")),
])
pocket5 = body.newObject("PartDesign::Pocket", "Pocket004")
pocket5.Profile = sketch6
pocket5.Length = 6.35
pocket5.Reversed = True

doc.recompute()
